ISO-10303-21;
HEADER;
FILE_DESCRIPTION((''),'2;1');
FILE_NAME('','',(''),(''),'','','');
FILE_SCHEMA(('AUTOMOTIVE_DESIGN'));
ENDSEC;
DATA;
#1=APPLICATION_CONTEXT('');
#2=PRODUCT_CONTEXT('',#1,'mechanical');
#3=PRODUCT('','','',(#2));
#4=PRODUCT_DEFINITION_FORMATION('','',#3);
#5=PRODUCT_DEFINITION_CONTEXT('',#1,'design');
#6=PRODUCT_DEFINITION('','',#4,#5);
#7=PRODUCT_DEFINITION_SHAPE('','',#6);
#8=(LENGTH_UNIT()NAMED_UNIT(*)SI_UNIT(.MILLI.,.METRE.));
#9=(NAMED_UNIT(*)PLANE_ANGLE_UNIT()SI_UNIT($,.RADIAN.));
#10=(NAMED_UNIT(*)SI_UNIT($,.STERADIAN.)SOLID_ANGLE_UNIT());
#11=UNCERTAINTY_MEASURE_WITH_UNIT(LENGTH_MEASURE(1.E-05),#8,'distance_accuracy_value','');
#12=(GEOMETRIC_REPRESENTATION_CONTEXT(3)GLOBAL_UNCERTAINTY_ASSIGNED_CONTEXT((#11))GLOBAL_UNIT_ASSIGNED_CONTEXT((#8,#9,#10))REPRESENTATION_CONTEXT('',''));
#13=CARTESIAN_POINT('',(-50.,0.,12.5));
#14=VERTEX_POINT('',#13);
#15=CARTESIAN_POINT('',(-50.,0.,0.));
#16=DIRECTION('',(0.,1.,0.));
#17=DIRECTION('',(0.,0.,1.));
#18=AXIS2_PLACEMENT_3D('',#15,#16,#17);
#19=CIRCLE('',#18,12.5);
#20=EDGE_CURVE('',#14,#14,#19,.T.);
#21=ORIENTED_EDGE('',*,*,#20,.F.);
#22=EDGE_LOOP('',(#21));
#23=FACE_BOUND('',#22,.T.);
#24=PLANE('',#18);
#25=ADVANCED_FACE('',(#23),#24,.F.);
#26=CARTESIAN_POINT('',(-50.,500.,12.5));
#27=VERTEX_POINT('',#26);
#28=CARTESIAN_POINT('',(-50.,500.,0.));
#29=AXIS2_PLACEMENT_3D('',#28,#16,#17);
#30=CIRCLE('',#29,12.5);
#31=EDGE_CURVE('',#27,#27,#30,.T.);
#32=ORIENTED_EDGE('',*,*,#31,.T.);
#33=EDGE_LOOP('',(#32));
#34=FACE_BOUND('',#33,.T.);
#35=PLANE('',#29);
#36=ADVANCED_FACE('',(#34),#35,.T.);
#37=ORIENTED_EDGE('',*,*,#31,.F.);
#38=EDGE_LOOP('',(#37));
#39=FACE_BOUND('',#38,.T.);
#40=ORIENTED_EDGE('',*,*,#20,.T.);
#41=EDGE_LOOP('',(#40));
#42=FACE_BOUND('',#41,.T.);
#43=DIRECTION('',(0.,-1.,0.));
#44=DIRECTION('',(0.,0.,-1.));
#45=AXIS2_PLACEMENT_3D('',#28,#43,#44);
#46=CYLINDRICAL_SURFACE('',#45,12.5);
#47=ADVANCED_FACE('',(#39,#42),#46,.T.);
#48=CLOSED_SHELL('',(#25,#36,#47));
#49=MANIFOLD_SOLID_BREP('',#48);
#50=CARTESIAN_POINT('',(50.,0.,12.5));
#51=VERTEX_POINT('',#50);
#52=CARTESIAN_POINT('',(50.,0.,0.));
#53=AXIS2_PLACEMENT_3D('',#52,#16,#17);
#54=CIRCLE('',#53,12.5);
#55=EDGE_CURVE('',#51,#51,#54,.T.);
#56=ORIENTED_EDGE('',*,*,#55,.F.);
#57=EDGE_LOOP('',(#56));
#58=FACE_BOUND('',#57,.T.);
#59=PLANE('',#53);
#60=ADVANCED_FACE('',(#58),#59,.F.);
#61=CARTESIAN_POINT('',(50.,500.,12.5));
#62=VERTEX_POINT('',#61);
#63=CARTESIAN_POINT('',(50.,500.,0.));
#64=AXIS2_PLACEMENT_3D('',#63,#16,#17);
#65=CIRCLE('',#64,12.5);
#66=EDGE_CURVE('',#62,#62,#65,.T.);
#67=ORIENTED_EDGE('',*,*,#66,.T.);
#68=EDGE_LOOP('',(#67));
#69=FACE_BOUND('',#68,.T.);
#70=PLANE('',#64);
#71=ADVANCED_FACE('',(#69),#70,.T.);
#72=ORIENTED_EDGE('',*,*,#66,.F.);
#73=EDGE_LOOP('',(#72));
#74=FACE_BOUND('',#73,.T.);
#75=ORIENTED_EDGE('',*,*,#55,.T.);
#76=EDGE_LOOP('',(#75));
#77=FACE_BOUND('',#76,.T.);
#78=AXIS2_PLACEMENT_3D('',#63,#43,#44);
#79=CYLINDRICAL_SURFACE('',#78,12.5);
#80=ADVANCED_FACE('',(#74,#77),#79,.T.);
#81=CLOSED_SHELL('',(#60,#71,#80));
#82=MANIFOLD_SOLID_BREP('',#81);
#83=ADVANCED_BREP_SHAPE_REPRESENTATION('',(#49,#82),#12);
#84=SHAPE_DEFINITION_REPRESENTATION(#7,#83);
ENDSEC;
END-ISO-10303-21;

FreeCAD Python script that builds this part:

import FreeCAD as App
import Part
import Sketcher
from FreeCAD import Vector
Q = App.Units.Quantity

doc = App.newDocument("Part")
body = doc.addObject("PartDesign::Body", "Body")

sketch1 = body.newObject("Sketcher::SketchObject", "Sketch")
sketch1.AttachmentSupport = (doc.getObject("XZ_Plane"), [""])
sketch1.MapMode = "FlatFace"
sketch1.addGeometry(Part.Circle(Vector(-50, 0, 0), Vector(0, 0, 1), 12), False)
sketch1.addConstraint([
    Sketcher.Constraint("PointOnObject", 0, 3, -1),
    Sketcher.Constraint("Diameter", 0, Q("25 mm")),
    Sketcher.Constraint("DistanceX", 0, 3, -1, 1, Q("50 mm")),
])
pad1 = body.newObject("PartDesign::Pad", "Pad")
pad1.Profile = sketch1
pad1.Length = 500
pad1.Reversed = True
body2 = doc.addObject("PartDesign::Body", "Body001")

sketch2 = body2.newObject("Sketcher::SketchObject", "Sketch001")
sketch2.AttachmentSupport = (doc.getObject("XZ_Plane001"), [""])
sketch2.MapMode = "FlatFace"
sketch2.addGeometry(Part.Circle(Vector(50, 0, 0), Vector(0, 0, 1), 12), False)
sketch2.addConstraint([
    Sketcher.Constraint("PointOnObject", 0, 3, -1),
    Sketcher.Constraint("Diameter", 0, Q("25 mm")),
    Sketcher.Constraint("DistanceX", -1, 1, 0, 3, Q("50 mm")),
])
pad2 = body2.newObject("PartDesign::Pad", "Pad001")
pad2.Profile = sketch2
pad2.Length = 500
pad2.Reversed = True

doc.recompute()
